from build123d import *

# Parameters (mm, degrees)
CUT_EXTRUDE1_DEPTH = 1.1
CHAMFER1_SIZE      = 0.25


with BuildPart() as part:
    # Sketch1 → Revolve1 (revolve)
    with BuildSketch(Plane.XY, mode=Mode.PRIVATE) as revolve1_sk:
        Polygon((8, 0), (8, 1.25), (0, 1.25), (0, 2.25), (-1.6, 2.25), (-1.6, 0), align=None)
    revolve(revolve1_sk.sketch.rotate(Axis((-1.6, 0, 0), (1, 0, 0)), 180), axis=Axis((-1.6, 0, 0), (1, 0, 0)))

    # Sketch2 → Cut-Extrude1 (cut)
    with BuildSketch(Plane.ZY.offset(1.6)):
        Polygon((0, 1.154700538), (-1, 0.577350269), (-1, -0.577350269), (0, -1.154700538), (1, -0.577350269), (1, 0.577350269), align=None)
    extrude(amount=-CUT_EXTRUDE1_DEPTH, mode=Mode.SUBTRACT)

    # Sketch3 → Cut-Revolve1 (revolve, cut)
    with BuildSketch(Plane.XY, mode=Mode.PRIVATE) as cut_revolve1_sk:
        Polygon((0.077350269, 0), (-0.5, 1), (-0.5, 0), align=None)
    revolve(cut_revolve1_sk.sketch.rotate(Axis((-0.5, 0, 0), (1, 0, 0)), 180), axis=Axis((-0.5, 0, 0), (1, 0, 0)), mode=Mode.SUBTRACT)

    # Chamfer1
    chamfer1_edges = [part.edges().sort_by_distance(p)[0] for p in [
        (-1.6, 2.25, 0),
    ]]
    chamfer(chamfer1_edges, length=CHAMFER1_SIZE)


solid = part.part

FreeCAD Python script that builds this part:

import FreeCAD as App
import Part
import Sketcher
from FreeCAD import Vector
Q = App.Units.Quantity


def edges_at(feature, points):
    """Names of the edges that pass closest to the given points."""
    edges = feature.Shape.Edges
    near = lambda p: min(range(len(edges)), key=lambda i: edges[i].distToShape(Part.Vertex(*p))[0])
    return sorted({f"Edge{near(p) + 1}" for p in points})


def add_polygon(sketch, points):
    """Adds a closed chain of lines whose ends are joined by coincident constraints."""
    first, n = sketch.GeometryCount, len(points)
    for a, b in zip(points, points[1:] + points[:1]):
        sketch.addGeometry(Part.LineSegment(App.Vector(*a, 0), App.Vector(*b, 0)), False)
    for i in range(n):
        sketch.addConstraint(Sketcher.Constraint("Coincident", first + i, 2, first + (i + 1) % n, 1))

doc = App.newDocument("Part")
body = doc.addObject("PartDesign::Body", "Body")

# Sketch on XY plane
sketch1 = body.newObject("Sketcher::SketchObject", "Sketch")
sketch1.AttachmentSupport = (doc.getObject("XY_Plane"), [""])
sketch1.MapMode = "FlatFace"
add_polygon(sketch1, [(8, 0), (8, 1.2), (0, 1.2), (0, 2.2), (-1.6, 2.2), (-1.6, 0)])  # lines 0-5
sketch1.addConstraint(Sketcher.Constraint("Vertical", 0))
sketch1.addConstraint(Sketcher.Constraint("Horizontal", 1))
sketch1.addConstraint(Sketcher.Constraint("Vertical", 2))
sketch1.addConstraint(Sketcher.Constraint("Horizontal", 3))
sketch1.addConstraint(Sketcher.Constraint("Vertical", 4))
sketch1.addConstraint(Sketcher.Constraint("Horizontal", 5))
sketch1.addConstraint(Sketcher.Constraint("PointOnObject", 1, 2, -2))
sketch1.addConstraint(Sketcher.Constraint("PointOnObject", 4, 2, -1))
sketch1.addConstraint(Sketcher.Constraint("DistanceX", 1, 2, 1, 1, 8.0))
sketch1.addConstraint(Sketcher.Constraint("DistanceY", 2, 1, 2, 2, 1.0))
sketch1.addConstraint(Sketcher.Constraint("DistanceX", 3, 2, 3, 1, 1.6))
sketch1.addConstraint(Sketcher.Constraint("DistanceY", 0, 1, 0, 2, 1.25))
revolution = body.newObject("PartDesign::Revolution", "Revolution")
revolution.Profile = sketch1
revolution.ReferenceAxis = (sketch1, ["H_Axis"])
revolution.Angle = 360

# Sketch on YZ plane
sketch2 = body.newObject("Sketcher::SketchObject", "Sketch001")
sketch2.AttachmentSupport = (doc.getObject("YZ_Plane"), [""])
sketch2.MapMode = "FlatFace"
sketch2.AttachmentOffset = App.Placement(Vector(0, 0, -1.6), App.Rotation())
add_polygon(sketch2, [(1.2, 0), (0.6, -1), (-0.6, -1), (-1.2, 0), (-0.6, 1), (0.6, 1)])  # lines 0-5
sketch2.addConstraint(Sketcher.Constraint("Horizontal", 1))
sketch2.addConstraint(Sketcher.Constraint("Horizontal", 4))
sketch2.addConstraint(Sketcher.Constraint("Symmetric", 0, 2, 3, 2, -1, 1))
sketch2.addConstraint(Sketcher.Constraint("Symmetric", 2, 2, 5, 2, -1, 1))
sketch2.addConstraint(Sketcher.Constraint("PointOnObject", 2, 2, -1))
sketch2.addConstraint(Sketcher.Constraint("Parallel", 2, 5))
sketch2.addConstraint(Sketcher.Constraint("Vertical", 1, 2, 3, 2))
sketch2.addConstraint(Sketcher.Constraint("Angle", 0, Q("-120 deg")))
sketch2.addConstraint(Sketcher.Constraint("DistanceY", 0, 2, -1, 1, 1.0))
sketch2.addConstraint(Sketcher.Constraint("DistanceX", 1, 2, 1, 1, 1.154701))
pocket1 = body.newObject("PartDesign::Pocket", "Pocket")
pocket1.Profile = sketch2
pocket1.Length = 1.1
pocket1.Reversed = True

# Sketch on XY plane
sketch3 = body.newObject("Sketcher::SketchObject", "Sketch002")
sketch3.AttachmentSupport = (doc.getObject("XY_Plane"), [""])
sketch3.MapMode = "FlatFace"
add_polygon(sketch3, [(0.1, 0), (-0.5, 1), (-0.5, 0)])  # lines 0-2
sketch3.addConstraint(Sketcher.Constraint("Vertical", 1))
sketch3.addConstraint(Sketcher.Constraint("Horizontal", 2))
sketch3.addConstraint(Sketcher.Constraint("PointOnObject", 1, 2, -1))
sketch3.addConstraint(Sketcher.Constraint("DistanceY", 1, 2, 1, 1, 1.0))
sketch3.addConstraint(Sketcher.Constraint("Angle", 0, Q("120 deg")))
sketch3.addConstraint(Sketcher.Constraint("DistanceX", 0, 2, -1, 1, 0.5))
groove = body.newObject("PartDesign::Groove", "Groove")
groove.Profile = sketch3
groove.ReferenceAxis = (sketch3, ["H_Axis"])
groove.Angle = 360
doc.recompute()

chamfer = body.newObject("PartDesign::Chamfer", "Chamfer")
chamfer.Base = (groove, edges_at(groove, [(-1.6, 2.25, 0)]))
chamfer.Size = 0.25

doc.recompute()
